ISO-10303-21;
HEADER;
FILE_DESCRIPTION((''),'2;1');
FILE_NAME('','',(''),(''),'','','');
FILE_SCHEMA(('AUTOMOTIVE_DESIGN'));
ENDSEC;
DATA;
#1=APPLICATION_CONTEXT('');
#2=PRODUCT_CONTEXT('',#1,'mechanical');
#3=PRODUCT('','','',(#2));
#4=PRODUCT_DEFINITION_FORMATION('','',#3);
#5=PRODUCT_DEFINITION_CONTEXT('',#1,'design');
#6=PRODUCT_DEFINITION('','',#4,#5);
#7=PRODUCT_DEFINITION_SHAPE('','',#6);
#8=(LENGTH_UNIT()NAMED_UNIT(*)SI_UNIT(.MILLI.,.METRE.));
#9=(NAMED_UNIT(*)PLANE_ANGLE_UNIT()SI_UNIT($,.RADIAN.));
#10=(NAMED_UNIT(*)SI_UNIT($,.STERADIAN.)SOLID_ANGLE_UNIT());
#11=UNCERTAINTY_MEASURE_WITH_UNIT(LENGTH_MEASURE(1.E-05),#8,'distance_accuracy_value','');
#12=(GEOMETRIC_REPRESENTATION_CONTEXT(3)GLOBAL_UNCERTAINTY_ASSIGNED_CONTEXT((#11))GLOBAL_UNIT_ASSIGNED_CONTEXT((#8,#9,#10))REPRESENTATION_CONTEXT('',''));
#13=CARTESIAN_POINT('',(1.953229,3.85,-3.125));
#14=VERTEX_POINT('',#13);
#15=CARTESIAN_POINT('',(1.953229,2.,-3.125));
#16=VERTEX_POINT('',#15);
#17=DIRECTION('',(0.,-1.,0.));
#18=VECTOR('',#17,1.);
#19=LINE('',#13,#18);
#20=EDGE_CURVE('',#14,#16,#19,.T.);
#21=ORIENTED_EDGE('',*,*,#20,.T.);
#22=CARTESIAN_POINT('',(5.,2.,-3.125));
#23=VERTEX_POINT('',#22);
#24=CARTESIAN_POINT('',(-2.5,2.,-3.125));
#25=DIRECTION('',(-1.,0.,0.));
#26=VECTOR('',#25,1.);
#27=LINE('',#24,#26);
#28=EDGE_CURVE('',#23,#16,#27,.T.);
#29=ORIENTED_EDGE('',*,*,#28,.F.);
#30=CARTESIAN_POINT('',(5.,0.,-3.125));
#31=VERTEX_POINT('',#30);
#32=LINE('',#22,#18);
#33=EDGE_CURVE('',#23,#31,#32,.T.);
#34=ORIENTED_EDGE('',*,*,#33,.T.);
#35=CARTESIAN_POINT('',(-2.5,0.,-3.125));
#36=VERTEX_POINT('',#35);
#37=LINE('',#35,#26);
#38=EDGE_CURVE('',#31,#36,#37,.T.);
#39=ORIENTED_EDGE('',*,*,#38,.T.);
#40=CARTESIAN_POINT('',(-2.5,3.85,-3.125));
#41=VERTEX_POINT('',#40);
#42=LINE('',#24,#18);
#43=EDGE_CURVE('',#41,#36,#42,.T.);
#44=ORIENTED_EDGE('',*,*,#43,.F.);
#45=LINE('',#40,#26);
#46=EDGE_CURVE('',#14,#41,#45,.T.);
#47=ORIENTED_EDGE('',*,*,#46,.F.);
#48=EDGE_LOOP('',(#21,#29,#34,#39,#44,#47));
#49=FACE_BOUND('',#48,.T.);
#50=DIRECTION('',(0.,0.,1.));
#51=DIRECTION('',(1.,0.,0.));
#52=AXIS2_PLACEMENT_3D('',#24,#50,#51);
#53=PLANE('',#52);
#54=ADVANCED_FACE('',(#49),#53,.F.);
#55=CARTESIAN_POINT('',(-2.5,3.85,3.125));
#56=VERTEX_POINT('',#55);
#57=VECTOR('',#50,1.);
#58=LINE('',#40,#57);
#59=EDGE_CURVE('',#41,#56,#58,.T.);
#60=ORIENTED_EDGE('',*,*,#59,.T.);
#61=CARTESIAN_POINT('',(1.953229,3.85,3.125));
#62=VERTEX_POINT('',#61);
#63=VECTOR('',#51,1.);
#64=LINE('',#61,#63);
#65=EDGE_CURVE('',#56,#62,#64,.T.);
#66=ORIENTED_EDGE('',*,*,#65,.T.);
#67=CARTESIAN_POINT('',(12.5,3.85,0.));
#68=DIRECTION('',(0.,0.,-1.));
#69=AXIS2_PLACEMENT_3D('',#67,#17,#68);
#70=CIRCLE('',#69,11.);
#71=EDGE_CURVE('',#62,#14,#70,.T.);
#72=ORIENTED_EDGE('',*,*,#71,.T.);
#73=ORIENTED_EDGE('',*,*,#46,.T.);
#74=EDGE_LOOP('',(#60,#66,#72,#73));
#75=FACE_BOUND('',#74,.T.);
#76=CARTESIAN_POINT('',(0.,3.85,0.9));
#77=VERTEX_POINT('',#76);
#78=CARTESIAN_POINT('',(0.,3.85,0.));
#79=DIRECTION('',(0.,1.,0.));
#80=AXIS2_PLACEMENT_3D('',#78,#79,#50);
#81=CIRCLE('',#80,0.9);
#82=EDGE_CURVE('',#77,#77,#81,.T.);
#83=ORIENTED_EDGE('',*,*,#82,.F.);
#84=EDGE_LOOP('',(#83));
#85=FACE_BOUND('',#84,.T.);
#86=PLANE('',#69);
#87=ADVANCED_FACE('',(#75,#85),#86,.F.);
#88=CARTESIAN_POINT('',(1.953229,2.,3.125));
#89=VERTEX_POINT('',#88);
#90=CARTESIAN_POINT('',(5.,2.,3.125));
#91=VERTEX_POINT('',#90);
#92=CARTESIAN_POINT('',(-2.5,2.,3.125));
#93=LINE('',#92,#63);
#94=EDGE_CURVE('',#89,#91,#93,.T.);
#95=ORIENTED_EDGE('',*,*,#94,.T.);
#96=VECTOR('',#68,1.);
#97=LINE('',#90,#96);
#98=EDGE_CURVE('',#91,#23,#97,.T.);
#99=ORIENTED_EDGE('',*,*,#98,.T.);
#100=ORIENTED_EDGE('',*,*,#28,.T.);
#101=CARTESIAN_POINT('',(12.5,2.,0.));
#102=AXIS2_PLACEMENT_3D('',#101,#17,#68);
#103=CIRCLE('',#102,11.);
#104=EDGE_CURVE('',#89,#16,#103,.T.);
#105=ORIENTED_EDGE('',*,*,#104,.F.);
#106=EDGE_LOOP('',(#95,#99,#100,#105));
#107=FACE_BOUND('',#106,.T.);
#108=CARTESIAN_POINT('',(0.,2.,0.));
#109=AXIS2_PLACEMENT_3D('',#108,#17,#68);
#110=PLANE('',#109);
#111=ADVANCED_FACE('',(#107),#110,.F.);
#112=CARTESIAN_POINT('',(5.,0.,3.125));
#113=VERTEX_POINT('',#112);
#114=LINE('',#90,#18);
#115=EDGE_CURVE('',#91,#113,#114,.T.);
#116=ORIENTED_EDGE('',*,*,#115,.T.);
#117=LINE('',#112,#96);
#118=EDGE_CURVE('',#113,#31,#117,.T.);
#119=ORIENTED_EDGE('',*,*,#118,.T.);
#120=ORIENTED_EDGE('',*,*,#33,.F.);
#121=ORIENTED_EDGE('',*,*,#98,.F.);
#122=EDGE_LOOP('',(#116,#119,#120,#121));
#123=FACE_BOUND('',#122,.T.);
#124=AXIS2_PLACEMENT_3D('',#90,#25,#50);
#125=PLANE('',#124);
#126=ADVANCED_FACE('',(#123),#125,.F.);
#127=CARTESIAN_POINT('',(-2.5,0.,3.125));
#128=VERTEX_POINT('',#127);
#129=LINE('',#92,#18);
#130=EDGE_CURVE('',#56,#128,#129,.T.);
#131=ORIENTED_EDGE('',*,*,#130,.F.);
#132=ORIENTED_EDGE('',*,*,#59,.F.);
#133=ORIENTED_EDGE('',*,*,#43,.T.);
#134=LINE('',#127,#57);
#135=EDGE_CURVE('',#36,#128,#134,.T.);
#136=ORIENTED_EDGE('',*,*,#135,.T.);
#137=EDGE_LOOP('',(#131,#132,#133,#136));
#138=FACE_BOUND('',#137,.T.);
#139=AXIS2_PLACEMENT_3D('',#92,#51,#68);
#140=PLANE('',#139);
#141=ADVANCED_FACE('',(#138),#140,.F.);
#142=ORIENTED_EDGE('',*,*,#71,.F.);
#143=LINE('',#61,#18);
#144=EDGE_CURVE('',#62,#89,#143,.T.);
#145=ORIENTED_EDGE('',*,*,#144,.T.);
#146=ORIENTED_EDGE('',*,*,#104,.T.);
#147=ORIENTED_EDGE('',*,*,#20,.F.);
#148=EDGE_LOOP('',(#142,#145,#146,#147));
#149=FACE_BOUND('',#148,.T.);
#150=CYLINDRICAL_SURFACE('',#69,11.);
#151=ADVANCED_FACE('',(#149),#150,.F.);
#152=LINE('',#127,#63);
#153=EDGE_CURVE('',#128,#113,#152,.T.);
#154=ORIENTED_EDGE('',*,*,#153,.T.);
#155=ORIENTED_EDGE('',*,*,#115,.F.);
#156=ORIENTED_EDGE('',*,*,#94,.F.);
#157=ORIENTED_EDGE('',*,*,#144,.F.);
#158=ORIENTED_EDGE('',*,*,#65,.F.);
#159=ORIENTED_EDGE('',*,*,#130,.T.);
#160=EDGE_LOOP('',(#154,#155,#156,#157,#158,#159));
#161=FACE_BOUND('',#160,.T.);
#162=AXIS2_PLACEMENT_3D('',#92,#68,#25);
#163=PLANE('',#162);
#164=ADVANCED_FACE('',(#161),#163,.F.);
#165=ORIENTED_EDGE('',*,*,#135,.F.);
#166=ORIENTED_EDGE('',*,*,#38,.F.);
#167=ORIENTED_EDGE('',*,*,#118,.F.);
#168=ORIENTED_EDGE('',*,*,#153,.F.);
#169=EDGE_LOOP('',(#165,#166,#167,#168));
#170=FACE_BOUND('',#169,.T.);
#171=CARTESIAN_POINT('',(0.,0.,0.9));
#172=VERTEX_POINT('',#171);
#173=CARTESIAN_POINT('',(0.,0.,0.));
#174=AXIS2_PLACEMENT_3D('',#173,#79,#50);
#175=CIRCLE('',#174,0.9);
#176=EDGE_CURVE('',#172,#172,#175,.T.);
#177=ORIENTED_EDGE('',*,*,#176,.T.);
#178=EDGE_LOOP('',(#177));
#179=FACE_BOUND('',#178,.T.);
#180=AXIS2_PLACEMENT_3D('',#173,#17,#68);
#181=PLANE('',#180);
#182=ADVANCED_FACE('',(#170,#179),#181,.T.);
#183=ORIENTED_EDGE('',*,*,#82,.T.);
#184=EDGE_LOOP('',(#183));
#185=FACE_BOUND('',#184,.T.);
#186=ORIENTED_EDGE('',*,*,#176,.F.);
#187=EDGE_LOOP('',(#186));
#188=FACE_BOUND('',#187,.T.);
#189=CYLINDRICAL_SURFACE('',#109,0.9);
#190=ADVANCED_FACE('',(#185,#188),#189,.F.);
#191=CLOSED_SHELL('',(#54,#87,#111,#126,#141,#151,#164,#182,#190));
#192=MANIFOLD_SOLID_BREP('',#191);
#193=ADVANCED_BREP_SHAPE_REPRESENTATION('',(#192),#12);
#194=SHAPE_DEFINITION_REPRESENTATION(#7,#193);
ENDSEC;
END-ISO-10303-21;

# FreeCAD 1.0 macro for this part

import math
import FreeCAD as App
import Part
import Sketcher

doc = App.newDocument("Part")
body = doc.addObject("PartDesign::Body", "Body")

sketch1 = body.newObject("Sketcher::SketchObject", "Sketch")
sketch1.AttachmentSupport = (doc.getObject("XZ_Plane"), [""])
sketch1.MapMode = "FlatFace"
sketch1.addGeometry(Part.LineSegment(App.Vector(-2.5, -3.125, 0), App.Vector(-2.5, 3.125, 0)), False)
sketch1.addGeometry(Part.LineSegment(App.Vector(-2.5, 3.125, 0), App.Vector(5, 3.125, 0)), False)
sketch1.addGeometry(Part.LineSegment(App.Vector(5, 3.125, 0), App.Vector(5, -3.125, 0)), False)
sketch1.addGeometry(Part.LineSegment(App.Vector(5, -3.125, 0), App.Vector(-2.5, -3.125, 0)), False)
sketch1.addGeometry(Part.Circle(App.Vector(0, 0, 0), App.Vector(0, 0, 1), 0.9), False)
sketch1.addConstraint(Sketcher.Constraint("Coincident", 0, 2, 1, 1))
sketch1.addConstraint(Sketcher.Constraint("Coincident", 1, 2, 2, 1))
sketch1.addConstraint(Sketcher.Constraint("Coincident", 2, 2, 3, 1))
sketch1.addConstraint(Sketcher.Constraint("Coincident", 3, 2, 0, 1))
sketch1.addConstraint(Sketcher.Constraint("Vertical", 0))
sketch1.addConstraint(Sketcher.Constraint("Horizontal", 1))
sketch1.addConstraint(Sketcher.Constraint("Vertical", 2))
sketch1.addConstraint(Sketcher.Constraint("Horizontal", 3))
sketch1.addConstraint(Sketcher.Constraint("Coincident", 4, 3, -1, 1))
sketch1.addConstraint(Sketcher.Constraint("Diameter", 4, 1.8))
sketch1.addConstraint(Sketcher.Constraint("DistanceX", 1, 1, 1, 2, 7.5))
sketch1.addConstraint(Sketcher.Constraint("DistanceX", -1, 1, 1, 2, 5.0))
sketch1.addConstraint(Sketcher.Constraint("DistanceY", 0, 1, 0, 2, 6.25))
sketch1.addConstraint(Sketcher.Constraint("DistanceY", -1, 1, 0, 2, 3.125))
pad1 = body.newObject("PartDesign::Pad", "Pad")
pad1.Profile = sketch1
pad1.Length = 2
pad1.Reversed = True

sketch2 = body.newObject("Sketcher::SketchObject", "Sketch001")
sketch2.AttachmentSupport = (doc.getObject("XZ_Plane"), [""])
sketch2.MapMode = "FlatFace"
sketch2.AttachmentOffset = App.Placement(App.Vector(0, 0, -2), App.Rotation())
sketch2.addGeometry(Part.LineSegment(App.Vector(-2.5, -3.125, 0), App.Vector(-2.5, 3.125, 0)), False)
sketch2.addGeometry(Part.LineSegment(App.Vector(-2.5, 3.125, 0), App.Vector(1.953229, 3.125, 0)), False)
sketch2.addGeometry(Part.ArcOfCircle(Part.Circle(App.Vector(12.5, 0, 0), App.Vector(0, 0, 1), 11), math.radians(163.495484), math.radians(196.504516)), False)
sketch2.addGeometry(Part.LineSegment(App.Vector(1.953229, -3.125, 0), App.Vector(-2.5, -3.125, 0)), False)
sketch2.addGeometry(Part.Circle(App.Vector(0, 0, 0), App.Vector(0, 0, 1), 0.9), False)
sketch2.addConstraint(Sketcher.Constraint("Coincident", 0, 2, 1, 1))
sketch2.addConstraint(Sketcher.Constraint("Coincident", 1, 2, 2, 1))
sketch2.addConstraint(Sketcher.Constraint("Coincident", 2, 2, 3, 1))
sketch2.addConstraint(Sketcher.Constraint("Coincident", 3, 2, 0, 1))
sketch2.addConstraint(Sketcher.Constraint("Vertical", 0))
sketch2.addConstraint(Sketcher.Constraint("Horizontal", 1))
sketch2.addConstraint(Sketcher.Constraint("Horizontal", 3))
sketch2.addConstraint(Sketcher.Constraint("Coincident", 4, 3, -1, 1))
sketch2.addConstraint(Sketcher.Constraint("Symmetric", 1, 2, 2, 2, -1))
sketch2.addConstraint(Sketcher.Constraint("Radius", 2, 11.0))
sketch2.addConstraint(Sketcher.Constraint("Diameter", 4, 1.8))
sketch2.addConstraint(Sketcher.Constraint("DistanceX", 0, 2, 2, 3, 15.0))
sketch2.addConstraint(Sketcher.Constraint("DistanceY", 0, 1, 0, 2, 6.25))
sketch2.addConstraint(Sketcher.Constraint("DistanceX", -1, 1, 2, 3, 12.5))
pad2 = body.newObject("PartDesign::Pad", "Pad001")
pad2.Profile = sketch2
pad2.Length = 1.85
pad2.Reversed = True

doc.recompute()
